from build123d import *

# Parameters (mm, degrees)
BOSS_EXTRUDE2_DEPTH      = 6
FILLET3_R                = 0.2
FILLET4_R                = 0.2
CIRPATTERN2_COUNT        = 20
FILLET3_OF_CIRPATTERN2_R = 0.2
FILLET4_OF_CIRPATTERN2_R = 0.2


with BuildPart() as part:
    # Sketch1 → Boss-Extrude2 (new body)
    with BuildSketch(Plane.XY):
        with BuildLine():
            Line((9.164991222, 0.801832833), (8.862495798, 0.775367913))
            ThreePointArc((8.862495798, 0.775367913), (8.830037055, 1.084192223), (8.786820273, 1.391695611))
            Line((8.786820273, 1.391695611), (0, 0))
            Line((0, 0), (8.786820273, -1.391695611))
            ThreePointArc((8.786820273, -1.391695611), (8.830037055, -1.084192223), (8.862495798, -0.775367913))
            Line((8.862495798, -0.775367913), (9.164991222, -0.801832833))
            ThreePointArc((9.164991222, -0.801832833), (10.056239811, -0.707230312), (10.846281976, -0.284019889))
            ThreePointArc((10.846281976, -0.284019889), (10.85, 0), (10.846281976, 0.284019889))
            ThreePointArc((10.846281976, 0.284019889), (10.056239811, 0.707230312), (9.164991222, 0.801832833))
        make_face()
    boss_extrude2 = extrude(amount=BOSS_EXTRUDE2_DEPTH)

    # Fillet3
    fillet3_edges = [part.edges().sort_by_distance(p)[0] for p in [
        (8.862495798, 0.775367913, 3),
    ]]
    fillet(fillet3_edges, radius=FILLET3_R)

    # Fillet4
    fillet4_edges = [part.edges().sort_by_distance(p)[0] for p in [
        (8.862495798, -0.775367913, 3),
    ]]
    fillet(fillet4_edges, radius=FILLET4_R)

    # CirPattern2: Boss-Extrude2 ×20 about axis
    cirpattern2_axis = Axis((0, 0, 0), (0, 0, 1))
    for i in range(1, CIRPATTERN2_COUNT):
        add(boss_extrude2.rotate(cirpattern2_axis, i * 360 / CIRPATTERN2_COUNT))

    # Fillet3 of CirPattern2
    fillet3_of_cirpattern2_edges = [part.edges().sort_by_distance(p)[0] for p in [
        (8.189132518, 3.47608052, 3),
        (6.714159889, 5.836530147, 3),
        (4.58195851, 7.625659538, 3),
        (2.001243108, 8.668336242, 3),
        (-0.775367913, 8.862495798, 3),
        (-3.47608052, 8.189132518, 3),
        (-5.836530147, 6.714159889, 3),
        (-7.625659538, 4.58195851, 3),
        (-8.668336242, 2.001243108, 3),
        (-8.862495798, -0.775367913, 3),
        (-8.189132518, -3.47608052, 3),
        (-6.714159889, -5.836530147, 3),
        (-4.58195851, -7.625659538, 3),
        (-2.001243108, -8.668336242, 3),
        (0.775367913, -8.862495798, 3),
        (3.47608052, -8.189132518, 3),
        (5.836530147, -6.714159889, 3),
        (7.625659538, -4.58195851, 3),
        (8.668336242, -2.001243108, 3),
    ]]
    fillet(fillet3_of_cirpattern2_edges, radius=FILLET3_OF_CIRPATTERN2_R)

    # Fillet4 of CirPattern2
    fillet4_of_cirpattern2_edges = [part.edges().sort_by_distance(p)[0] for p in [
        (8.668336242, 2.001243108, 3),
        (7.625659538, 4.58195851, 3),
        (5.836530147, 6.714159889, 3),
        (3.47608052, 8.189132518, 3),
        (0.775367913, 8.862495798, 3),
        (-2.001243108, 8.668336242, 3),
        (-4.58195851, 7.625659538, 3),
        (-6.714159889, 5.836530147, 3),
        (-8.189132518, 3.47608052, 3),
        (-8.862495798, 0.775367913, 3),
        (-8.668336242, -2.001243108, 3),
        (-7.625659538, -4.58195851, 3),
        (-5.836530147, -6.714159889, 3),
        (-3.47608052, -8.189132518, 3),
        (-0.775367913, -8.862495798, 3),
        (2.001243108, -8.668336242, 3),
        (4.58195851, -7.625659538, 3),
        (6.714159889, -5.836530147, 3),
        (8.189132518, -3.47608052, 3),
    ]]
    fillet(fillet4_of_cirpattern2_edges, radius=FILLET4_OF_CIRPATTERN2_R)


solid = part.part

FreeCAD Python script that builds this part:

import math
import FreeCAD as App
import Part
import Sketcher
from FreeCAD import Vector
Q = App.Units.Quantity


def edges_at(feature, points):
    """Names of the edges that pass closest to the given points."""
    edges = feature.Shape.Edges
    near = lambda p: min(range(len(edges)), key=lambda i: edges[i].distToShape(Part.Vertex(*p))[0])
    return sorted({f"Edge{near(p) + 1}" for p in points})

doc = App.newDocument("Part")
params = doc.addObject("Spreadsheet::Sheet", "Params")
for row, (alias, value) in enumerate([
    ("sketch1_radius", "10.85 mm"),
    ("pad1_length", "6 mm"),
    ("fillet_radius", "0.2 mm"),
    ("fillet2_radius", "0.2 mm"),
    ("fillet3_radius", "0.2 mm"),
    ("fillet4_radius", "0.2 mm"),
], start=1):
    params.set(f"A{row}", alias)
    params.set(f"B{row}", "=" + value)
    params.setAlias(f"B{row}", alias)

body = doc.addObject("PartDesign::Body", "Body")

# Sketch on XY plane
sketch1 = doc.addObject("Sketcher::SketchObject", "Sketch")
body.addObject(sketch1)
sketch1.AttachmentSupport = (doc.XY_Plane, [""])
sketch1.MapMode = "FlatFace"
sketch1.addGeometry([
    Part.LineSegment(Vector(9.16, 0.8, 0), Vector(8.86, 0.78, 0)),  # 0
    Part.ArcOfCircle(Part.Circle(Vector(0, 0, 0), Vector(0, 0, 1), 8.9), math.radians(5), math.radians(9)),  # 1
    Part.LineSegment(Vector(8.79, 1.39, 0), Vector(0, 0, 0)),  # 2
    Part.LineSegment(Vector(0, 0, 0), Vector(8.79, -1.39, 0)),  # 3
    Part.ArcOfCircle(Part.Circle(Vector(0, 0, 0), Vector(0, 0, 1), 8.9), math.radians(-9), math.radians(-5)),  # 4
    Part.LineSegment(Vector(8.86, -0.78, 0), Vector(9.16, -0.8, 0)),  # 5
    Part.ArcOfCircle(Part.Circle(Vector(9.37, 1.53, 0), Vector(0, 0, 1), 2.34), math.radians(-95), math.radians(-51)),  # 6
    Part.ArcOfCircle(Part.Circle(Vector(0, 0, 0), Vector(0, 0, 1), 10.85), math.radians(-1.5), math.radians(1.5)),  # 7
    Part.ArcOfCircle(Part.Circle(Vector(9.37, -1.53, 0), Vector(0, 0, 1), 2.34), math.radians(51), math.radians(95)),  # 8
], False)
sketch1.addConstraint([
    Sketcher.Constraint("Coincident", 0, 2, 1, 1),
    Sketcher.Constraint("Coincident", 1, 2, 2, 1),
    Sketcher.Constraint("Coincident", 2, 2, 3, 1),
    Sketcher.Constraint("Coincident", 3, 2, 4, 1),
    Sketcher.Constraint("Coincident", 4, 2, 5, 1),
    Sketcher.Constraint("Tangent", 5, 2, 6, 1),
    Sketcher.Constraint("Coincident", 6, 2, 7, 1),
    Sketcher.Constraint("Coincident", 7, 2, 8, 1),
    Sketcher.Constraint("Tangent", 8, 2, 0, 1),
    Sketcher.Constraint("Coincident", 1, 3, -1, 1),
    Sketcher.Constraint("Coincident", 4, 3, -1, 1),
    Sketcher.Constraint("Coincident", 7, 3, -1, 1),
    Sketcher.Constraint("Coincident", 2, 2, -1, 1),
    Sketcher.Constraint("Equal", 1, 4),
    Sketcher.Constraint("Equal", 6, 8),
    Sketcher.Constraint("Symmetric", 6, 3, 8, 3, -1),
    Sketcher.Constraint("Vertical", 1, 2, 3, 2),
    Sketcher.Constraint("Vertical", 0, 2, 4, 2),
    Sketcher.Constraint("Angle", 0, Q("-175 deg")),
    Sketcher.Constraint("Angle", 2, Q("-171 deg")),
    Sketcher.Constraint("Radius", 7, Q("10.85 mm")),
    Sketcher.Constraint("Radius", 1, Q("8.89635 mm")),
    Sketcher.Constraint("Radius", 6, Q("2.336185 mm")),
    Sketcher.Constraint("DistanceY", 5, 2, 0, 2, Q("1.577201 mm")),
    Sketcher.Constraint("Distance", 0, Q("0.303651 mm")),
])
sketch1.setExpression("Constraints[20]", "Params.sketch1_radius")
pad1 = doc.addObject("PartDesign::Pad", "Pad")
body.addObject(pad1)
pad1.Profile = sketch1
pad1.setExpression("Length", "Params.pad1_length")
doc.recompute()

fillet = doc.addObject("PartDesign::Fillet", "Fillet")
body.addObject(fillet)
fillet.Base = (pad1, edges_at(pad1, [(8.862, 0.775, 3)]))
fillet.setExpression("Radius", "Params.fillet_radius")
doc.recompute()

fillet2 = doc.addObject("PartDesign::Fillet", "Fillet001")
body.addObject(fillet2)
fillet2.Base = (fillet, edges_at(fillet, [(8.862, -0.775, 3)]))
fillet2.setExpression("Radius", "Params.fillet2_radius")
doc.recompute()

polarpattern = doc.addObject("PartDesign::PolarPattern", "PolarPattern")
body.addObject(polarpattern)
polarpattern.Originals = [pad1]
polarpattern.Axis = (doc.Z_Axis, [""])
polarpattern.Angle = 360
polarpattern.Occurrences = 20
body.Tip = polarpattern
doc.recompute()

fillet3 = doc.addObject("PartDesign::Fillet", "Fillet002")
body.addObject(fillet3)
fillet3.Base = (polarpattern, edges_at(polarpattern, [
    (8.189, 3.476, 3),
    (6.714, 5.837, 3),
    (4.582, 7.626, 3),
    (2.001, 8.668, 3),
    (-0.775, 8.862, 3),
    (-3.476, 8.189, 3),
    (-5.837, 6.714, 3),
    (-7.626, 4.582, 3),
    (-8.668, 2.001, 3),
    (-8.862, -0.775, 3),
    (-8.189, -3.476, 3),
    (-6.714, -5.837, 3),
    (-4.582, -7.626, 3),
    (-2.001, -8.668, 3),
    (0.775, -8.862, 3),
    (3.476, -8.189, 3),
    (5.837, -6.714, 3),
    (7.626, -4.582, 3),
    (8.668, -2.001, 3),
]))
fillet3.setExpression("Radius", "Params.fillet3_radius")
doc.recompute()

fillet4 = doc.addObject("PartDesign::Fillet", "Fillet003")
body.addObject(fillet4)
fillet4.Base = (fillet3, edges_at(fillet3, [
    (8.668, 2.001, 3),
    (7.626, 4.582, 3),
    (5.837, 6.714, 3),
    (3.476, 8.189, 3),
    (0.775, 8.862, 3),
    (-2.001, 8.668, 3),
    (-4.582, 7.626, 3),
    (-6.714, 5.837, 3),
    (-8.189, 3.476, 3),
    (-8.862, 0.775, 3),
    (-8.668, -2.001, 3),
    (-7.626, -4.582, 3),
    (-5.837, -6.714, 3),
    (-3.476, -8.189, 3),
    (-0.775, -8.862, 3),
    (2.001, -8.668, 3),
    (4.582, -7.626, 3),
    (6.714, -5.837, 3),
    (8.189, -3.476, 3),
]))
fillet4.setExpression("Radius", "Params.fillet4_radius")

doc.recompute()
